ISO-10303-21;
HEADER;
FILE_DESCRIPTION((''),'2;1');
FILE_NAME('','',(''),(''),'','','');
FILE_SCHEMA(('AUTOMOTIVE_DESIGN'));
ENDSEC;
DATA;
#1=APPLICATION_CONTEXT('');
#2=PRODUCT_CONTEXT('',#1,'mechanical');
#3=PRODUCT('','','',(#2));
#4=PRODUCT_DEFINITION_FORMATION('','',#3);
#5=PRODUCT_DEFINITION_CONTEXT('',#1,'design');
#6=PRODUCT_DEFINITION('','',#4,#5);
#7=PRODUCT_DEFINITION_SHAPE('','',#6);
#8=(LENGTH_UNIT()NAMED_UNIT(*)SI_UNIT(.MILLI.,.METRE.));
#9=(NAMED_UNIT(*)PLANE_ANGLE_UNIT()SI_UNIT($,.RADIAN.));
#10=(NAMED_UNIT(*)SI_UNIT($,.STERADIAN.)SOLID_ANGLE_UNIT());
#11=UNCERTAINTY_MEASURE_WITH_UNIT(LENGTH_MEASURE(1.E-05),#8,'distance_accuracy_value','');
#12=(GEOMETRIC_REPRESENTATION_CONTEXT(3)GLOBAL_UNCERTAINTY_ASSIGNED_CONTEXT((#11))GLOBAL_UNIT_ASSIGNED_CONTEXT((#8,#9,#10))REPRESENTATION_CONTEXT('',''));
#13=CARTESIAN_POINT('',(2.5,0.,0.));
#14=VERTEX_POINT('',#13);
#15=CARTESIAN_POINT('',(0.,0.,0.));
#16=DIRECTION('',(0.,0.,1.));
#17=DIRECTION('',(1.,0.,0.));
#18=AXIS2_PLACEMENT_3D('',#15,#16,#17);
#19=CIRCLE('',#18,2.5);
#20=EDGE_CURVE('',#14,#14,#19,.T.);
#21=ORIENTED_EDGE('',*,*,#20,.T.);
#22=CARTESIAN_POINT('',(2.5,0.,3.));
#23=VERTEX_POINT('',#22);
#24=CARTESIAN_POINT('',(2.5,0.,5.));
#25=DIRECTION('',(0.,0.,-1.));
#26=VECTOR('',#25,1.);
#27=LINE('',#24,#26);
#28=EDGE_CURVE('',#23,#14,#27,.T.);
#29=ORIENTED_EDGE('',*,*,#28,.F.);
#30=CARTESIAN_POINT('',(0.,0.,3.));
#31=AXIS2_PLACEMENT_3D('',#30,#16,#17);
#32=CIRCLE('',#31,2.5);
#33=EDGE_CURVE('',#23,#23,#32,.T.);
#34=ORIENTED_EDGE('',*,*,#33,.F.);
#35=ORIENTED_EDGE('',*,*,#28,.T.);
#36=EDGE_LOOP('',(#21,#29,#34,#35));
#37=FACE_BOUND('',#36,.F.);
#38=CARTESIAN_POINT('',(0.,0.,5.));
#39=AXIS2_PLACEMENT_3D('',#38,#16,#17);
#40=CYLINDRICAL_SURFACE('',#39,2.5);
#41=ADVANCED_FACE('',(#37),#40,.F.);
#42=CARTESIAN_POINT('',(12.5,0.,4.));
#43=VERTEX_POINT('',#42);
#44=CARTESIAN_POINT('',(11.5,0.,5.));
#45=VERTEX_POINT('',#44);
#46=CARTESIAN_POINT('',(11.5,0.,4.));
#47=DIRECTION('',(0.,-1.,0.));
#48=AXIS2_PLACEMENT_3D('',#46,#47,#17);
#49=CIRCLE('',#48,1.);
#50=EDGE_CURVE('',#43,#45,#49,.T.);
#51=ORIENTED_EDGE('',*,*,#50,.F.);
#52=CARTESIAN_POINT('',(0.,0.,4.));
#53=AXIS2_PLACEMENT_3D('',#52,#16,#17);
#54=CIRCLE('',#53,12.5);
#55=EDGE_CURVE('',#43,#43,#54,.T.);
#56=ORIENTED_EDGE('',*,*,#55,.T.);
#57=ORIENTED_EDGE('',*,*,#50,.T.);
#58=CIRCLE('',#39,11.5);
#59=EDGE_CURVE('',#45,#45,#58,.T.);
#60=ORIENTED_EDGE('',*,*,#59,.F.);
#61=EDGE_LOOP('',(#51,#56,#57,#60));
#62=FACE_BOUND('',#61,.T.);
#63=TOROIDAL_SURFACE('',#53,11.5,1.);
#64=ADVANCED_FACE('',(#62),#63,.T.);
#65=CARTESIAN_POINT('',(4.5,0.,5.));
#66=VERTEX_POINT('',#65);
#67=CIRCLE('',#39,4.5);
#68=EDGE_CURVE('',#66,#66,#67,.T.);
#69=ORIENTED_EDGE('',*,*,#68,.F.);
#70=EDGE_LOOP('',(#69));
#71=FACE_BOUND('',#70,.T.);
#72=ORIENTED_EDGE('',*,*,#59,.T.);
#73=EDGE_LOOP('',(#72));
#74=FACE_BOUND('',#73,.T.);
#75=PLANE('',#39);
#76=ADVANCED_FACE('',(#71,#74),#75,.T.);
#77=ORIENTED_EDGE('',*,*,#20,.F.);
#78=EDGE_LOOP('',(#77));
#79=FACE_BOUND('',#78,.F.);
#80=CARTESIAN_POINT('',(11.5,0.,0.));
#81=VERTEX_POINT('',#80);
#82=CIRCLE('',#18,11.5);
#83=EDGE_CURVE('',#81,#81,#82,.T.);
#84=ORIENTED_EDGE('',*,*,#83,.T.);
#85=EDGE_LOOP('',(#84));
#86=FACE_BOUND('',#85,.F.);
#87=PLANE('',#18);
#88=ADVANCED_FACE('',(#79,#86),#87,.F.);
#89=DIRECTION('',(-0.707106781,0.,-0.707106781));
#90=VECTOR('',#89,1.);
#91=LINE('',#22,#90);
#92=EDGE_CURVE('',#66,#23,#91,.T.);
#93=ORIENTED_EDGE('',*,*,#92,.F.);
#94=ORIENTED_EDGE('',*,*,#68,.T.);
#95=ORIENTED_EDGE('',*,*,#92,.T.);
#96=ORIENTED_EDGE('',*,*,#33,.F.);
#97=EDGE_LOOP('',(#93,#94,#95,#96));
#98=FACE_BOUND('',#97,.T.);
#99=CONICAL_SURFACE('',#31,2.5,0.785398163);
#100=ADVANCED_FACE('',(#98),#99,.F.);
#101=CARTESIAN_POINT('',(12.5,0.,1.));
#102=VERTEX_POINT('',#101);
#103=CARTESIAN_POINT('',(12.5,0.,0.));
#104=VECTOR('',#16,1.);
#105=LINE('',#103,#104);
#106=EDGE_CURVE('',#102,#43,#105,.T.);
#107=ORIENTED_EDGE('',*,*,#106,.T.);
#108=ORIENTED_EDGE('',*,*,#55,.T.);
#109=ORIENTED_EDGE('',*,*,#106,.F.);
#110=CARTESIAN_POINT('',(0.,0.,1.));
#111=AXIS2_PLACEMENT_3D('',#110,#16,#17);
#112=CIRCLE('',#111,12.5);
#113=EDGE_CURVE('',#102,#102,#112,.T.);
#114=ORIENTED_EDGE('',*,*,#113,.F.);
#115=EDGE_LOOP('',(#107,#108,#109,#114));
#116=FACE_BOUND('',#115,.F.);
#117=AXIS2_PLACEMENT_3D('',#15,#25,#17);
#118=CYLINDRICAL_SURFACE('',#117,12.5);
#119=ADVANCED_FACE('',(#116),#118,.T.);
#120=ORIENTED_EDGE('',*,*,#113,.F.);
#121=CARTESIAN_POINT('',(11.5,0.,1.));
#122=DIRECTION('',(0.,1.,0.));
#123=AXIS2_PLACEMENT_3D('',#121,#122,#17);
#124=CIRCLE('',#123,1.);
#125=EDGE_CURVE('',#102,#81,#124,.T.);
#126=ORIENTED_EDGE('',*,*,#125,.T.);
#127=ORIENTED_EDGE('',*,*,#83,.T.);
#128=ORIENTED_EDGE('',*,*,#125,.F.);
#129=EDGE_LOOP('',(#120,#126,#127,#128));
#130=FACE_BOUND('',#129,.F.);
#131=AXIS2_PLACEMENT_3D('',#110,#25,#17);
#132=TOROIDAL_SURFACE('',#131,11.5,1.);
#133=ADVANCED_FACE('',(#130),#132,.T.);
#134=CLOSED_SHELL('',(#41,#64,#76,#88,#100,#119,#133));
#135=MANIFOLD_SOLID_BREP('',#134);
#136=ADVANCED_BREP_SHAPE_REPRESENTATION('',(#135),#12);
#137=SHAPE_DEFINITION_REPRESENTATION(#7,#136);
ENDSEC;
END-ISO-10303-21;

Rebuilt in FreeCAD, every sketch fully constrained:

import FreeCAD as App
import Part
import Sketcher
from FreeCAD import Vector
Q = App.Units.Quantity


def edges_at(feature, points):
    """Names of the edges that pass closest to the given points."""
    edges = feature.Shape.Edges
    near = lambda p: min(range(len(edges)), key=lambda i: edges[i].distToShape(Part.Vertex(*p))[0])
    return sorted({f"Edge{near(p) + 1}" for p in points})

doc = App.newDocument("Part")
params = doc.addObject("Spreadsheet::Sheet", "Params")
for row, (alias, value) in enumerate([
    ("sketch1_diameter", "25 mm"),
    ("pad1_length", "5 mm"),
    ("fillet_radius", "1 mm"),
    ("sketch2_diameter", "5 mm"),
    ("pocket1_length", "5 mm"),
    ("chamfer_size", "2 mm"),
], start=1):
    params.set(f"A{row}", alias)
    params.set(f"B{row}", "=" + value)
    params.setAlias(f"B{row}", alias)

body = doc.addObject("PartDesign::Body", "Body")

# Sketch on XY plane
sketch1 = body.newObject("Sketcher::SketchObject", "Sketch")
sketch1.AttachmentSupport = (doc.getObject("XY_Plane"), [""])
sketch1.MapMode = "FlatFace"
sketch1.addGeometry(Part.Circle(Vector(0, 0, 0), Vector(0, 0, 1), 12), False)
sketch1.addConstraint([
    Sketcher.Constraint("Coincident", 0, 3, -1, 1),
    Sketcher.Constraint("Diameter", 0, Q("25 mm")),
])
sketch1.setExpression("Constraints[1]", "Params.sketch1_diameter")
pad1 = body.newObject("PartDesign::Pad", "Pad")
pad1.Profile = sketch1
pad1.setExpression("Length", "Params.pad1_length")
doc.recompute()

fillet = body.newObject("PartDesign::Fillet", "Fillet")
fillet.Base = (pad1, edges_at(pad1, [(-12.5, 0, 5), (-12.5, 0, 0)]))
fillet.setExpression("Radius", "Params.fillet_radius")

# Sketch on XY plane
sketch2 = body.newObject("Sketcher::SketchObject", "Sketch001")
sketch2.AttachmentSupport = (doc.getObject("XY_Plane"), [""])
sketch2.MapMode = "FlatFace"
sketch2.AttachmentOffset = App.Placement(Vector(0, 0, 5), App.Rotation())
sketch2.addGeometry(Part.Circle(Vector(0, 0, 0), Vector(0, 0, 1), 2.5), False)
sketch2.addConstraint([
    Sketcher.Constraint("Coincident", 0, 3, -1, 1),
    Sketcher.Constraint("Diameter", 0, Q("5 mm")),
])
sketch2.setExpression("Constraints[1]", "Params.sketch2_diameter")
pocket1 = body.newObject("PartDesign::Pocket", "Pocket")
pocket1.Profile = sketch2
pocket1.setExpression("Length", "Params.pocket1_length")
doc.recompute()

chamfer = body.newObject("PartDesign::Chamfer", "Chamfer")
chamfer.Base = (pocket1, edges_at(pocket1, [(-2.5, 0, 5)]))
chamfer.setExpression("Size", "Params.chamfer_size")

doc.recompute()
